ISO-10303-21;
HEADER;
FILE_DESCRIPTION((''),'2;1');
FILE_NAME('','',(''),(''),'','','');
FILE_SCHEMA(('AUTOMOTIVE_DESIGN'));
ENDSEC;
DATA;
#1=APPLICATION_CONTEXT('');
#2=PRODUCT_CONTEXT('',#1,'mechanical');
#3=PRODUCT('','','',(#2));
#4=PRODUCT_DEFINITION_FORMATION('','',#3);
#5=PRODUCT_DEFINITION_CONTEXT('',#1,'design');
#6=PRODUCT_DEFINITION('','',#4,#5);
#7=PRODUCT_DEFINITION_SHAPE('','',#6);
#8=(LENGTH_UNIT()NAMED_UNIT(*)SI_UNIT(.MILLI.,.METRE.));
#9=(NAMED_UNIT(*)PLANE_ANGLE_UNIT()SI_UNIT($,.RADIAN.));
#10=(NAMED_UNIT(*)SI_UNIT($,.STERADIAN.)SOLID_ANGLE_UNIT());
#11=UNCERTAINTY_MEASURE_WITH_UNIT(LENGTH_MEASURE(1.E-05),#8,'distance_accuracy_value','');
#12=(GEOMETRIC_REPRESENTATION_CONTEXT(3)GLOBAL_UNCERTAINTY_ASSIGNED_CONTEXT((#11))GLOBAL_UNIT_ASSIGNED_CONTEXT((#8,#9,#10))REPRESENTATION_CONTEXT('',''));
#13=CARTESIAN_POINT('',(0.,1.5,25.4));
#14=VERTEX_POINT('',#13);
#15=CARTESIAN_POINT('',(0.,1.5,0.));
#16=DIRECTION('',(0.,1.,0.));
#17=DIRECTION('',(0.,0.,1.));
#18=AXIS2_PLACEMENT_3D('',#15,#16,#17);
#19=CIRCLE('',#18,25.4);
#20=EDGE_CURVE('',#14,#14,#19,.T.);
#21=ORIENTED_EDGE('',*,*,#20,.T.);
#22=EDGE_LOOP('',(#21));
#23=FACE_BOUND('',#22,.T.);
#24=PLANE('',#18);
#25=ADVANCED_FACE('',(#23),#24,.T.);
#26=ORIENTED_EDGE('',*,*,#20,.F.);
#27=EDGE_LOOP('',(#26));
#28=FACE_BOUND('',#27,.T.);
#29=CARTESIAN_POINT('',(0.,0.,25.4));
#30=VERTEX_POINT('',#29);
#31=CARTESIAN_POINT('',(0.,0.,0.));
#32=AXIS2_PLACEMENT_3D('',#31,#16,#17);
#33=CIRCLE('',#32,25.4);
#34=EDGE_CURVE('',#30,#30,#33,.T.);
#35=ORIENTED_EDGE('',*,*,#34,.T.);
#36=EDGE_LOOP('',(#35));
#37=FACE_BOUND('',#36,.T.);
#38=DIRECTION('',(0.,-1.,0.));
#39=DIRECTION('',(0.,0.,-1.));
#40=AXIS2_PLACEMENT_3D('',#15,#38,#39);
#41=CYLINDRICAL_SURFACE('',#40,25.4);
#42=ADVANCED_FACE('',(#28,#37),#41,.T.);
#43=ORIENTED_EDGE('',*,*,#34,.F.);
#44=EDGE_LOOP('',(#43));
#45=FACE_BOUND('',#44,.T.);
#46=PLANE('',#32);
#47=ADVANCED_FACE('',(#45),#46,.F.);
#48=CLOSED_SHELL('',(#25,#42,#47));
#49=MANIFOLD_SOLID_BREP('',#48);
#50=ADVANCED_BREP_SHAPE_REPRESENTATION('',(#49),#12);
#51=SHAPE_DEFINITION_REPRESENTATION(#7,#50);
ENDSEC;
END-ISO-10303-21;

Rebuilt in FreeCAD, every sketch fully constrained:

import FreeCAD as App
import Part
import Sketcher
Q = App.Units.Quantity

doc = App.newDocument("Part")
params = doc.addObject("Spreadsheet::Sheet", "Params")
for row, (alias, value) in enumerate([
    ("sketch1_diameter", "50.8 mm"),
    ("pad1_length", "1.5 mm"),
], start=1):
    params.set(f"A{row}", alias)
    params.set(f"B{row}", "=" + value)
    params.setAlias(f"B{row}", alias)

body = doc.addObject("PartDesign::Body", "Body")

sketch1 = body.newObject("Sketcher::SketchObject", "Sketch")
sketch1.AttachmentSupport = (doc.getObject("XZ_Plane"), [""])
sketch1.MapMode = "FlatFace"
sketch1.addGeometry(Part.Circle(App.Vector(0, 0, 0), App.Vector(0, 0, 1), 25), False)
sketch1.addConstraint(Sketcher.Constraint("Coincident", 0, 3, -1, 1))
sketch1.addConstraint(Sketcher.Constraint("Diameter", 0, Q("50.8 mm")))
sketch1.setExpression("Constraints[1]", "Params.sketch1_diameter")
pad1 = body.newObject("PartDesign::Pad", "Pad")
pad1.Profile = sketch1
pad1.setExpression("Length", "Params.pad1_length")
pad1.Reversed = True

doc.recompute()
